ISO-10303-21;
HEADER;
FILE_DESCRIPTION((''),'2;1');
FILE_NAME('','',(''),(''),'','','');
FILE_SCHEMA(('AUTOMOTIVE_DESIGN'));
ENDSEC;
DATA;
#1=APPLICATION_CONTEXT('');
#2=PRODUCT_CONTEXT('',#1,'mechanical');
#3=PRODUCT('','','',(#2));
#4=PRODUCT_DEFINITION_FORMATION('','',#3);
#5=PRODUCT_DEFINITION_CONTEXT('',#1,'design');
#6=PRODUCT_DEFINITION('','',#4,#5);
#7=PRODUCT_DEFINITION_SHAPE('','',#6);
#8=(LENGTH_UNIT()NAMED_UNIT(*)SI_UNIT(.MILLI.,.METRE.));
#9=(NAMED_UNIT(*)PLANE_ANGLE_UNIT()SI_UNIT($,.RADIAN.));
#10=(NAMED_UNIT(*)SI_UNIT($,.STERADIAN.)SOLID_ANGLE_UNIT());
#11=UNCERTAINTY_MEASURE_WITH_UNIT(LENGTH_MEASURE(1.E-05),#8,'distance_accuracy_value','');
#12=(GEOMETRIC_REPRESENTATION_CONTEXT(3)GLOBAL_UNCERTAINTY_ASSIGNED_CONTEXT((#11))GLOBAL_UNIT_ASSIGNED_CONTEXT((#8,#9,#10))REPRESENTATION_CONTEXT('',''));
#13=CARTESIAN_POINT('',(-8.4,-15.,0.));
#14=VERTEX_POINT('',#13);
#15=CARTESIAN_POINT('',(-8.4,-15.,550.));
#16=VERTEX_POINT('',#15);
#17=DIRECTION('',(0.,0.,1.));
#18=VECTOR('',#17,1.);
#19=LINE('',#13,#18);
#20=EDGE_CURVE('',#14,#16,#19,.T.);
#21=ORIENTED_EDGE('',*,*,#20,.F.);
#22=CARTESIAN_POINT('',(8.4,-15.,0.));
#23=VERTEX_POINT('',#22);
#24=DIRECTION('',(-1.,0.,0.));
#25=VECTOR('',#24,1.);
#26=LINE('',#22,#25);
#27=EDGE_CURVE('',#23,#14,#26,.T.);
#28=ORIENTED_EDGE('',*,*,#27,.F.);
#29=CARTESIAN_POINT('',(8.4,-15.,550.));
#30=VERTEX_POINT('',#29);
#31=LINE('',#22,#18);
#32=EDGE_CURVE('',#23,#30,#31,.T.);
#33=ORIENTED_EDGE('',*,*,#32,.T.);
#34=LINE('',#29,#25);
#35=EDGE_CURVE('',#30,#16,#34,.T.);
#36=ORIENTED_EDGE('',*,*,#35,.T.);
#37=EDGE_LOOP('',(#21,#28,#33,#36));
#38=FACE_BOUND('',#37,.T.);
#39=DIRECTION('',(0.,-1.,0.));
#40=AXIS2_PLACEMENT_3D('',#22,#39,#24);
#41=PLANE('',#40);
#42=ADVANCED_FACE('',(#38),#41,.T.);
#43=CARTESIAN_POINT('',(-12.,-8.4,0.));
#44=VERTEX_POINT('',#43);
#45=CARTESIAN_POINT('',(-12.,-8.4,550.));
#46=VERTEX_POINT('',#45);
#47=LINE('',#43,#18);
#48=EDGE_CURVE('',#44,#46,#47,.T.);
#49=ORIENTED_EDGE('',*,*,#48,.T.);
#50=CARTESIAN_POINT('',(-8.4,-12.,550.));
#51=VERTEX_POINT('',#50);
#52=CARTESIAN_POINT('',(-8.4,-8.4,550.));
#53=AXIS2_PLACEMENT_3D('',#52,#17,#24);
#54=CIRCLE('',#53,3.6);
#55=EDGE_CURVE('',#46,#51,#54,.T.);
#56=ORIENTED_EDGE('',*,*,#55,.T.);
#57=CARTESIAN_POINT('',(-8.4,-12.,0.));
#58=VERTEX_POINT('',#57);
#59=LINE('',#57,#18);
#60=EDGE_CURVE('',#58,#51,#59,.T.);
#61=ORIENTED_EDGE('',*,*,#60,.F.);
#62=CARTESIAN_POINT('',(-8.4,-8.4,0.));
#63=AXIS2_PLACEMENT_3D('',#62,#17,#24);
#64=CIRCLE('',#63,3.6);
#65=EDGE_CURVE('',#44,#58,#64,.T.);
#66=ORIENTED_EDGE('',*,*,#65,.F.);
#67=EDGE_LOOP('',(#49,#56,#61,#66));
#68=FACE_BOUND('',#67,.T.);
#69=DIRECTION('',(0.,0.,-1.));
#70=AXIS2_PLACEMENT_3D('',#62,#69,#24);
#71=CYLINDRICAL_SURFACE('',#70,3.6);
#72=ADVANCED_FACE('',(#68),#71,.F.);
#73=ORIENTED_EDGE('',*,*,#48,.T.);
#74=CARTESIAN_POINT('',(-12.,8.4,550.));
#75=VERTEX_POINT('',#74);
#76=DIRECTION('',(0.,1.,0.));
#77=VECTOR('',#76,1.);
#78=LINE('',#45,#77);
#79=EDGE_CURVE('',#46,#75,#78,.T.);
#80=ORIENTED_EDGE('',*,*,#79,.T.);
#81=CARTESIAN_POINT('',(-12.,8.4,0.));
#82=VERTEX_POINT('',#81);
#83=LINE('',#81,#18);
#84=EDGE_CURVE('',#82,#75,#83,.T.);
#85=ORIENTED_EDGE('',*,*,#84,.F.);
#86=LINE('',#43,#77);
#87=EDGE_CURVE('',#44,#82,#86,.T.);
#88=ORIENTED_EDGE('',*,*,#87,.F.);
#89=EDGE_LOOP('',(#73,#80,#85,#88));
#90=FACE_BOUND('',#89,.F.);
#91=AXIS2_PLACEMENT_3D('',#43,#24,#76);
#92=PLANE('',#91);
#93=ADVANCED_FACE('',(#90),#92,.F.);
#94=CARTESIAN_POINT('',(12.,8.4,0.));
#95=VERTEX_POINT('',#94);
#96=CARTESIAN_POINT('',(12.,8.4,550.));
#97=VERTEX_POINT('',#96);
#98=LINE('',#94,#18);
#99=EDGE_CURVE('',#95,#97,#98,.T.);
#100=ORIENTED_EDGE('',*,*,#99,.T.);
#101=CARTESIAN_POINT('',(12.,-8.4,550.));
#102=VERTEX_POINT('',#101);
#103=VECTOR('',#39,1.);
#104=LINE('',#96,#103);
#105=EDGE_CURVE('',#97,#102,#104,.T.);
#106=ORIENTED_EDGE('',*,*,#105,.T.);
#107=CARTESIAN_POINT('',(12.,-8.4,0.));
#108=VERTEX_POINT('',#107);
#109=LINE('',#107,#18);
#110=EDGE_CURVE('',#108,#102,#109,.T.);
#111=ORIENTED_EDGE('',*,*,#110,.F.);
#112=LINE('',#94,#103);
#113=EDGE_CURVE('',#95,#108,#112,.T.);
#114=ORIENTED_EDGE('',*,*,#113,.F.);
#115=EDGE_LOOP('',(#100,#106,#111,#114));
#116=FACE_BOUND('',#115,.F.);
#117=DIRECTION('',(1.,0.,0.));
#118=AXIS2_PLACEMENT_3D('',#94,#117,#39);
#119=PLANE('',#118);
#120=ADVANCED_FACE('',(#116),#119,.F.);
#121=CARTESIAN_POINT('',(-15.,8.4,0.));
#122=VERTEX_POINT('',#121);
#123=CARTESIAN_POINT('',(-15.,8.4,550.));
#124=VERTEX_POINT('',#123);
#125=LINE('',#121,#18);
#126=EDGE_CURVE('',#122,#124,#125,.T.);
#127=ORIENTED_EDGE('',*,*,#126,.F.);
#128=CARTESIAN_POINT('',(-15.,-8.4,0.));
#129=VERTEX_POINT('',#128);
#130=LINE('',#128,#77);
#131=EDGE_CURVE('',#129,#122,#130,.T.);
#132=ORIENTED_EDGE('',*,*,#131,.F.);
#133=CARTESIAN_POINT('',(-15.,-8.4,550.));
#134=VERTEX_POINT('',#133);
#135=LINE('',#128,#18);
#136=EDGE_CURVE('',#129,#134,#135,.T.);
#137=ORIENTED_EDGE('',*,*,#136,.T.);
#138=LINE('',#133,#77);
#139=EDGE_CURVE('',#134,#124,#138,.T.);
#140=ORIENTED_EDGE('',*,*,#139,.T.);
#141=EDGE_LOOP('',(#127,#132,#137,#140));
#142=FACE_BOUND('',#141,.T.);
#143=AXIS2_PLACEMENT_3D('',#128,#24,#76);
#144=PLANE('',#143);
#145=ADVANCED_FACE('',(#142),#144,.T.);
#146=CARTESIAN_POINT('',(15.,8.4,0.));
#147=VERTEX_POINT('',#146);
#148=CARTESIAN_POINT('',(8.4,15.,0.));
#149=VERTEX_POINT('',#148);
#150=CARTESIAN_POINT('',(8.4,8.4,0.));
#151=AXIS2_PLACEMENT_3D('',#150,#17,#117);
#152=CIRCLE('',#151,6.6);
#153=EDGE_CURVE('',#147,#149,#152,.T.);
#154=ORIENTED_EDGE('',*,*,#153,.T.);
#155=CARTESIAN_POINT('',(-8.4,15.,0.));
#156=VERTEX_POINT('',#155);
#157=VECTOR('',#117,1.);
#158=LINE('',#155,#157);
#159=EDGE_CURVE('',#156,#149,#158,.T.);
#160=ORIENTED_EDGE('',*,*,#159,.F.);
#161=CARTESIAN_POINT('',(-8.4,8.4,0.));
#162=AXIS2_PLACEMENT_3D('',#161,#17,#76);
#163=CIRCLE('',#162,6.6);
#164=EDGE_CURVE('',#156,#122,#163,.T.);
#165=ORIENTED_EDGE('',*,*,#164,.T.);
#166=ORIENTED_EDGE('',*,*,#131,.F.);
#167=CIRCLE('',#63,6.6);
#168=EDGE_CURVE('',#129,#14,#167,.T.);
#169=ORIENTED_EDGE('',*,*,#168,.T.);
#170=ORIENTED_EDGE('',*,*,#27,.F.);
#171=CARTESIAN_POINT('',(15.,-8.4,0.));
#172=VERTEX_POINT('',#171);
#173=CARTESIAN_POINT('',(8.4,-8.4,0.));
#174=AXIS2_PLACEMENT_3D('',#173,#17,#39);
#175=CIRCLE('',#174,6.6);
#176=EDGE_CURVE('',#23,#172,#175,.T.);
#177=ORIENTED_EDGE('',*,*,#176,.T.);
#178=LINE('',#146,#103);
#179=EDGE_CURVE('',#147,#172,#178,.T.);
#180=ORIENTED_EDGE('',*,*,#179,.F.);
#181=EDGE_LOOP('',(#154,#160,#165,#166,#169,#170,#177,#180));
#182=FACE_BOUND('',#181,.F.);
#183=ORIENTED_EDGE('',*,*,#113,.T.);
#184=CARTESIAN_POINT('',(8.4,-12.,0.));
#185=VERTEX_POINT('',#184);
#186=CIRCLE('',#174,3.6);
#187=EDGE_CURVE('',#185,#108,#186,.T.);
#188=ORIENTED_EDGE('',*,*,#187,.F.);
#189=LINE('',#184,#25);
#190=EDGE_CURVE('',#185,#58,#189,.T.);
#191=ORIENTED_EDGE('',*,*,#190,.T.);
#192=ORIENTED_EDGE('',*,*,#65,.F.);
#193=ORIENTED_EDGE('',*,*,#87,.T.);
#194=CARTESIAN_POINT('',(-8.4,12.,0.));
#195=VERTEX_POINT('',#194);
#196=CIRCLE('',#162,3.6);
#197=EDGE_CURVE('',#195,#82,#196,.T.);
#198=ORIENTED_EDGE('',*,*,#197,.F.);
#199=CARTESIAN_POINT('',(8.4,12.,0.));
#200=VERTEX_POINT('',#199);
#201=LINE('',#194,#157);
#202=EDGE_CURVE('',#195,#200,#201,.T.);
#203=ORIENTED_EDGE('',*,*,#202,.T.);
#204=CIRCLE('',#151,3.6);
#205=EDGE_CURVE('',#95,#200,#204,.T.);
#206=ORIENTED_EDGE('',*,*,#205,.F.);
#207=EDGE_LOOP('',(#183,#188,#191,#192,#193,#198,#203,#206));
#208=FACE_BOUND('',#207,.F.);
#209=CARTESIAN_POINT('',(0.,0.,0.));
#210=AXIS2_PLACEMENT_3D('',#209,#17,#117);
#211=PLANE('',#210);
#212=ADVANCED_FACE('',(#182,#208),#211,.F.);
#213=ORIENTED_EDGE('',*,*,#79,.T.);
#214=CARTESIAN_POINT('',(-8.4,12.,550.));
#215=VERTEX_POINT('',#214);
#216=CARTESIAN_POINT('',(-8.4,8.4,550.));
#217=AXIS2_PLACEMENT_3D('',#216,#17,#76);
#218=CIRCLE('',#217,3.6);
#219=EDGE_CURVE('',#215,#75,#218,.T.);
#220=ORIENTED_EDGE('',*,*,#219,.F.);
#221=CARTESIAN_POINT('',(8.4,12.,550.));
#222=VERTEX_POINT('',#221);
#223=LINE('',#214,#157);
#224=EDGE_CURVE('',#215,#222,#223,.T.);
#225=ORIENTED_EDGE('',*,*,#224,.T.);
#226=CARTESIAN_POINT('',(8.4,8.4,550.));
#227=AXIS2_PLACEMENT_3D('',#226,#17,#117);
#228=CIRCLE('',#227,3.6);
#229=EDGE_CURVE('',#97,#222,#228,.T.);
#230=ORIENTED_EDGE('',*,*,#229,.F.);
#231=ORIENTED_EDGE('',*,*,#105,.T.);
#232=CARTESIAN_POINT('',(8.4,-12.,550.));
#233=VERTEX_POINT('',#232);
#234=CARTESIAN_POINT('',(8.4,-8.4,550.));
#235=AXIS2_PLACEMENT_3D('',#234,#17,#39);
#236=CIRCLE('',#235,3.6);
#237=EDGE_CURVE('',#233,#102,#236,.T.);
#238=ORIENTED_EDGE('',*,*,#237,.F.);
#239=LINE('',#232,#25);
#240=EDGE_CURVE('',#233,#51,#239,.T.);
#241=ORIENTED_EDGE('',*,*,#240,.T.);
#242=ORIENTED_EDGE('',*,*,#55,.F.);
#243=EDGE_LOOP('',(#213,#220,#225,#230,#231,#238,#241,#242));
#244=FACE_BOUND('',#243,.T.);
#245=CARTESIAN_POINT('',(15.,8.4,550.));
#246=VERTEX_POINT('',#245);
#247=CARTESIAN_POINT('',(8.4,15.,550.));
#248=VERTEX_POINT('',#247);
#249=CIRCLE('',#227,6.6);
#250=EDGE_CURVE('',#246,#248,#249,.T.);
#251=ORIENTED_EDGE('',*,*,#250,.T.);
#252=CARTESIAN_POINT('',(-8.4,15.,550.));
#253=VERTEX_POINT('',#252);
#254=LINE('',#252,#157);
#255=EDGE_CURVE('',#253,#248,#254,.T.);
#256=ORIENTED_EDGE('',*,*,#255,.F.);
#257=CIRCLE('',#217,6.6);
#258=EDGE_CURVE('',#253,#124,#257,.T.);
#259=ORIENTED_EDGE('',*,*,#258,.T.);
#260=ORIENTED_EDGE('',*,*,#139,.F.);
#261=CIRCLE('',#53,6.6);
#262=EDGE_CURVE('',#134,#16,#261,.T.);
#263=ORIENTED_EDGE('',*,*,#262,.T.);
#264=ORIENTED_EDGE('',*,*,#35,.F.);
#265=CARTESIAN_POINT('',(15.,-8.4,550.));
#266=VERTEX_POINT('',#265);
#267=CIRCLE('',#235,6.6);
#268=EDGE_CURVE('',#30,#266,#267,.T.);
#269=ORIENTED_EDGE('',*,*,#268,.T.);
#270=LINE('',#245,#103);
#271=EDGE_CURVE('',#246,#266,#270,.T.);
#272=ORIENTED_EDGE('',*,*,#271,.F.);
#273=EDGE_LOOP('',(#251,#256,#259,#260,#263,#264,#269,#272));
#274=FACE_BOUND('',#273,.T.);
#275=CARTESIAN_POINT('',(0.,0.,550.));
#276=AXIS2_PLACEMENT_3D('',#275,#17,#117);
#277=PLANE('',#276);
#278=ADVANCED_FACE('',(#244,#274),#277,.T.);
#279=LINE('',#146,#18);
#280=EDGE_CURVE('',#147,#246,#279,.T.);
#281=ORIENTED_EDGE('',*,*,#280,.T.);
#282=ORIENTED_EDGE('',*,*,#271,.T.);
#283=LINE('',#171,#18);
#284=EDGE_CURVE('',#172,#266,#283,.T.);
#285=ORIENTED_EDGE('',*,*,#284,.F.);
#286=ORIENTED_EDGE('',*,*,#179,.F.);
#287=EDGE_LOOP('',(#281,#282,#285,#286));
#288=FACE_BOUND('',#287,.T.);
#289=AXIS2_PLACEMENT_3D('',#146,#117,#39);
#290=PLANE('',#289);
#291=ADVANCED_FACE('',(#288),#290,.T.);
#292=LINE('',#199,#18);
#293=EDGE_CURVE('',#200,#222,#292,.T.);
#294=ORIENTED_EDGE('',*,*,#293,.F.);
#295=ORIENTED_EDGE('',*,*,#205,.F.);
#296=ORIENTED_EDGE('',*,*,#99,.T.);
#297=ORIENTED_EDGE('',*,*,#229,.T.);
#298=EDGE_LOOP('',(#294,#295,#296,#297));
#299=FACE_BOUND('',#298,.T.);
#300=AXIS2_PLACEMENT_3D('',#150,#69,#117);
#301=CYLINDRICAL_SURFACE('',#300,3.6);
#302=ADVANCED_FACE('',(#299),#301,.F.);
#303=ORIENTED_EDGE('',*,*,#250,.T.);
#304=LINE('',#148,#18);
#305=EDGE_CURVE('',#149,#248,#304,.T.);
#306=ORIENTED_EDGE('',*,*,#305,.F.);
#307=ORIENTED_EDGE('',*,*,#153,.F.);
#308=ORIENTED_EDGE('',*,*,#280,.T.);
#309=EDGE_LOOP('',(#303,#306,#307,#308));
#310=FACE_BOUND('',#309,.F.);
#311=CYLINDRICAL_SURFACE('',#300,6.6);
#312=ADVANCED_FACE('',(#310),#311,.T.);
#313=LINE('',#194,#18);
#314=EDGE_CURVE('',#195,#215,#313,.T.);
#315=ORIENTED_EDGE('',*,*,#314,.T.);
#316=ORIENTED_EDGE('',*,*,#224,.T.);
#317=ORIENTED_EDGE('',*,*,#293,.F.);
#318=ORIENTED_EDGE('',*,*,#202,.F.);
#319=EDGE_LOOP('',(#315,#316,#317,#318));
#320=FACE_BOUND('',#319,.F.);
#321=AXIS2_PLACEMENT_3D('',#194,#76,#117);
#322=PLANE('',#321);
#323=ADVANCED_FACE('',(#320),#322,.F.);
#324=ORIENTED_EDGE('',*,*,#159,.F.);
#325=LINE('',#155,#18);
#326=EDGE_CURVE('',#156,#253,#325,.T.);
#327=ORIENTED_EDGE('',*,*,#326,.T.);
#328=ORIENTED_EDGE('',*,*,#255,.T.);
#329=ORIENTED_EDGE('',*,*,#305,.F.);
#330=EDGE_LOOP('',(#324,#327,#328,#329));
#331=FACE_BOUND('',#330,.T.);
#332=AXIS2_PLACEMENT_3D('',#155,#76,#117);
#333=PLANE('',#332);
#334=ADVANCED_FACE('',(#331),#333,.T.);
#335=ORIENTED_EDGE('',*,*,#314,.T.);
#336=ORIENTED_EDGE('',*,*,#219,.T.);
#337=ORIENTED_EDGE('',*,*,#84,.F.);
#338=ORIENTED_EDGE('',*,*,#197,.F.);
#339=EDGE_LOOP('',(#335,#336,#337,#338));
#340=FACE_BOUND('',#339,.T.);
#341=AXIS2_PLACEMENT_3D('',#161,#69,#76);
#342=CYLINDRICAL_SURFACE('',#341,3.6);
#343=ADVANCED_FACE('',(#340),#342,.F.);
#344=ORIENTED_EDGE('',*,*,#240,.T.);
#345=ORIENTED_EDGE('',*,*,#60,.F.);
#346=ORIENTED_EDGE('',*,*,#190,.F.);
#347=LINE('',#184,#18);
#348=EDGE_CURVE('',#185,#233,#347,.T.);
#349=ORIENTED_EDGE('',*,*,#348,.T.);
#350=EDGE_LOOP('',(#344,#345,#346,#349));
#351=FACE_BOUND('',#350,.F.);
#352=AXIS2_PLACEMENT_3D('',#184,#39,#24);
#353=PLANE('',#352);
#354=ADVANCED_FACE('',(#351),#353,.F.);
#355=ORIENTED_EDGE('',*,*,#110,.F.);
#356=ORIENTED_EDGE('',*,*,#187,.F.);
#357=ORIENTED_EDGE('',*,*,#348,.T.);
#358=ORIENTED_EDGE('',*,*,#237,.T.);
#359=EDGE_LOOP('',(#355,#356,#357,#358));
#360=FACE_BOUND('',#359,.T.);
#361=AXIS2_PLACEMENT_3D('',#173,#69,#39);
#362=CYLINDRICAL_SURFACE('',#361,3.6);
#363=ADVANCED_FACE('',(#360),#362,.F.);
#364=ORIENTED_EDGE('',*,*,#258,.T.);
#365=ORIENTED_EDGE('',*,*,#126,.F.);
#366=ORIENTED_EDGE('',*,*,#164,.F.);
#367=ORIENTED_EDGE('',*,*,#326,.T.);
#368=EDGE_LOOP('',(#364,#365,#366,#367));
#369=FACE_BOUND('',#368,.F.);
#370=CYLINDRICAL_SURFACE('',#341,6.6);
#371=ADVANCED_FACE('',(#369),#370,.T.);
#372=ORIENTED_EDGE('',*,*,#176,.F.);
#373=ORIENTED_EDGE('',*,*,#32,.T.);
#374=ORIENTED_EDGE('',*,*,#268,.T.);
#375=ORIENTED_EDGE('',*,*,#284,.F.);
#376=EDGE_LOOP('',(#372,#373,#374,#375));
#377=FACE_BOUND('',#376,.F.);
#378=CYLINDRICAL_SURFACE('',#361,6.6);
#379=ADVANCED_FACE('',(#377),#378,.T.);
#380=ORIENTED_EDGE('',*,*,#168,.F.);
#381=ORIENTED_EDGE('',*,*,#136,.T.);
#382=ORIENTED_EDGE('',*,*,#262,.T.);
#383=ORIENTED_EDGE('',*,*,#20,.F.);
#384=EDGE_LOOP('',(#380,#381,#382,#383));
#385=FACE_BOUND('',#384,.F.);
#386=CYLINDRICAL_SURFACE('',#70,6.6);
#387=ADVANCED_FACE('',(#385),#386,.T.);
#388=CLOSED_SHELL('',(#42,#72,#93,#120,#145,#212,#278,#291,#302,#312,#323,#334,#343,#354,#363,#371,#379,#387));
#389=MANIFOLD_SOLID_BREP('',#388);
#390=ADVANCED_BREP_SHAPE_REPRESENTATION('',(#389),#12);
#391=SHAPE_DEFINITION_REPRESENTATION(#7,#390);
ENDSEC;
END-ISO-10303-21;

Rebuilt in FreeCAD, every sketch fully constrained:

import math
import FreeCAD as App
import Part
import Sketcher

V = App.Vector
Q = App.Units.Quantity

doc = App.newDocument("Part")
body = doc.addObject("PartDesign::Body", "Body")

sketch1 = doc.addObject("Sketcher::SketchObject", "Sketch")
body.addObject(sketch1)
sketch1.AttachmentSupport = (doc.XY_Plane, [""])
sketch1.MapMode = "FlatFace"
sketch1.addGeometry([
    Part.LineSegment(V(-15, 8.4, 0), V(-15, -8.4, 0)),
    Part.ArcOfCircle(Part.Circle(V(-8.4, -8.4, 0), V(0, 0, 1), 6.6), math.radians(180), math.radians(270)),
    Part.LineSegment(V(-8.4, -15, 0), V(8.4, -15, 0)),
    Part.ArcOfCircle(Part.Circle(V(8.4, -8.4, 0), V(0, 0, 1), 6.6), math.radians(-90), math.radians(0)),
    Part.LineSegment(V(15, -8.4, 0), V(15, 8.4, 0)),
    Part.ArcOfCircle(Part.Circle(V(8.4, 8.4, 0), V(0, 0, 1), 6.6), math.radians(0), math.radians(90)),
    Part.LineSegment(V(8.4, 15, 0), V(-8.4, 15, 0)),
    Part.ArcOfCircle(Part.Circle(V(-8.4, 8.4, 0), V(0, 0, 1), 6.6), math.radians(90), math.radians(180)),
    Part.ArcOfCircle(Part.Circle(V(-8.4, 8.4, 0), V(0, 0, 1), 3.6), math.radians(90), math.radians(180)),
    Part.LineSegment(V(-8.4, 12, 0), V(8.4, 12, 0)),
    Part.ArcOfCircle(Part.Circle(V(8.4, 8.4, 0), V(0, 0, 1), 3.6), math.radians(0), math.radians(90)),
    Part.LineSegment(V(12, 8.4, 0), V(12, -8.4, 0)),
    Part.ArcOfCircle(Part.Circle(V(8.4, -8.4, 0), V(0, 0, 1), 3.6), math.radians(-90), math.radians(0)),
    Part.LineSegment(V(8.4, -12, 0), V(-8.4, -12, 0)),
    Part.ArcOfCircle(Part.Circle(V(-8.4, -8.4, 0), V(0, 0, 1), 3.6), math.radians(180), math.radians(270)),
    Part.LineSegment(V(-12, -8.4, 0), V(-12, 8.4, 0)),
], False)
sketch1.addConstraint([
    Sketcher.Constraint("Tangent", 0, 2, 1, 1),
    Sketcher.Constraint("Tangent", 1, 2, 2, 1),
    Sketcher.Constraint("Tangent", 2, 2, 3, 1),
    Sketcher.Constraint("Tangent", 3, 2, 4, 1),
    Sketcher.Constraint("Tangent", 4, 2, 5, 1),
    Sketcher.Constraint("Tangent", 5, 2, 6, 1),
    Sketcher.Constraint("Tangent", 6, 2, 7, 1),
    Sketcher.Constraint("Tangent", 7, 2, 0, 1),
    Sketcher.Constraint("Tangent", 8, 1, 9, 1),
    Sketcher.Constraint("Tangent", 9, 2, 10, 2),
    Sketcher.Constraint("Tangent", 10, 1, 11, 1),
    Sketcher.Constraint("Tangent", 11, 2, 12, 2),
    Sketcher.Constraint("Tangent", 12, 1, 13, 1),
    Sketcher.Constraint("Tangent", 13, 2, 14, 2),
    Sketcher.Constraint("Tangent", 14, 1, 15, 1),
    Sketcher.Constraint("Tangent", 15, 2, 8, 2),
    Sketcher.Constraint("Vertical", 0),
    Sketcher.Constraint("Horizontal", 2),
    Sketcher.Constraint("Vertical", 4),
    Sketcher.Constraint("Horizontal", 6),
    Sketcher.Constraint("Horizontal", 9),
    Sketcher.Constraint("Vertical", 11),
    Sketcher.Constraint("Horizontal", 13),
    Sketcher.Constraint("Vertical", 15),
    Sketcher.Constraint("Coincident", 8, 3, 7, 3),
    Sketcher.Constraint("Coincident", 10, 3, 5, 3),
    Sketcher.Constraint("Coincident", 12, 3, 3, 3),
    Sketcher.Constraint("Equal", 1, 3),
    Sketcher.Constraint("Equal", 3, 5),
    Sketcher.Constraint("Equal", 5, 7),
    Sketcher.Constraint("Equal", 12, 14),
    Sketcher.Constraint("Symmetric", 1, 3, 5, 3, -1, 1),
    Sketcher.Constraint("Equal", 13, 0),
    Sketcher.Constraint("Radius", 1, Q("6.6 mm")),
    Sketcher.Constraint("DistanceX", 0, 2, -1, 1, Q("15 mm")),
    Sketcher.Constraint("DistanceY", 8, 1, 6, 2, Q("3 mm")),
])
pad1 = doc.addObject("PartDesign::Pad", "Pad")
body.addObject(pad1)
pad1.Profile = sketch1
pad1.Length = 550

doc.recompute()
